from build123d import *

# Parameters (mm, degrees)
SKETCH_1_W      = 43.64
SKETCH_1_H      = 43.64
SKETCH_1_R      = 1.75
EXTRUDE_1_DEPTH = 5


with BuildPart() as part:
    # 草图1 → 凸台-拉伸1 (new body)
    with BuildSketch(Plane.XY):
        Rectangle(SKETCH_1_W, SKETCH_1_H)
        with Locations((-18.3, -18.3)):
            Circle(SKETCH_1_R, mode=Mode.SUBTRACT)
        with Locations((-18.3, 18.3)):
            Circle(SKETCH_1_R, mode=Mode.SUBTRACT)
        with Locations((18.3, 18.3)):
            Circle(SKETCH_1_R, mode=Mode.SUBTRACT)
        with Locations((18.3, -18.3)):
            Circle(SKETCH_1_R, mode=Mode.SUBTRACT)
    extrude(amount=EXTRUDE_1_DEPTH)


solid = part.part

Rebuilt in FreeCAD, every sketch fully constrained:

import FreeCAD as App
import Part
import Sketcher


def add_polygon(sketch, points):
    """Adds a closed chain of lines whose ends are joined by coincident constraints."""
    first, n = sketch.GeometryCount, len(points)
    for a, b in zip(points, points[1:] + points[:1]):
        sketch.addGeometry(Part.LineSegment(App.Vector(*a, 0), App.Vector(*b, 0)), False)
    for i in range(n):
        sketch.addConstraint(Sketcher.Constraint("Coincident", first + i, 2, first + (i + 1) % n, 1))

doc = App.newDocument("Part")
body = doc.addObject("PartDesign::Body", "Body")

# Sketch on XY plane
sketch1 = doc.addObject("Sketcher::SketchObject", "Sketch")
body.addObject(sketch1)
sketch1.AttachmentSupport = (doc.XY_Plane, [""])
sketch1.MapMode = "FlatFace"
add_polygon(sketch1, [(-21.82, 21.82), (-21.82, -21.82), (21.82, -21.82), (21.82, 21.82)])  # lines 0-3
sketch1.addGeometry(Part.Circle(App.Vector(-18.3, -18.3, 0), App.Vector(0, 0, 1), 1.75), False)  # 4
sketch1.addGeometry(Part.Circle(App.Vector(18.3, -18.3, 0), App.Vector(0, 0, 1), 1.75), False)  # 5
sketch1.addGeometry(Part.Circle(App.Vector(-18.3, 18.3, 0), App.Vector(0, 0, 1), 1.75), False)  # 6
sketch1.addGeometry(Part.Circle(App.Vector(18.3, 18.3, 0), App.Vector(0, 0, 1), 1.75), False)  # 7
sketch1.addConstraint([
    Sketcher.Constraint("Vertical", 0),
    Sketcher.Constraint("Horizontal", 1),
    Sketcher.Constraint("Vertical", 2),
    Sketcher.Constraint("Horizontal", 3),
    Sketcher.Constraint("Equal", 4, 5),
    Sketcher.Constraint("Equal", 5, 6),
    Sketcher.Constraint("Equal", 6, 7),
    Sketcher.Constraint("Symmetric", 5, 3, 6, 3, -1, 1),
    Sketcher.Constraint("Symmetric", 4, 3, 7, 3, -1, 1),
    Sketcher.Constraint("Symmetric", 0, 2, 2, 2, -1, 1),
    Sketcher.Constraint("Symmetric", 4, 3, 5, 3, -2),
    Sketcher.Constraint("Equal", 3, 0),
    Sketcher.Constraint("Diameter", 4, 3.5),
    Sketcher.Constraint("DistanceX", 1, 1, 1, 2, 43.64),
    Sketcher.Constraint("DistanceX", 4, 3, -1, 1, 18.3),
    Sketcher.Constraint("DistanceY", 4, 3, -1, 1, 18.3),
])
pad1 = doc.addObject("PartDesign::Pad", "Pad")
body.addObject(pad1)
pad1.Profile = sketch1
pad1.Length = 5

doc.recompute()
